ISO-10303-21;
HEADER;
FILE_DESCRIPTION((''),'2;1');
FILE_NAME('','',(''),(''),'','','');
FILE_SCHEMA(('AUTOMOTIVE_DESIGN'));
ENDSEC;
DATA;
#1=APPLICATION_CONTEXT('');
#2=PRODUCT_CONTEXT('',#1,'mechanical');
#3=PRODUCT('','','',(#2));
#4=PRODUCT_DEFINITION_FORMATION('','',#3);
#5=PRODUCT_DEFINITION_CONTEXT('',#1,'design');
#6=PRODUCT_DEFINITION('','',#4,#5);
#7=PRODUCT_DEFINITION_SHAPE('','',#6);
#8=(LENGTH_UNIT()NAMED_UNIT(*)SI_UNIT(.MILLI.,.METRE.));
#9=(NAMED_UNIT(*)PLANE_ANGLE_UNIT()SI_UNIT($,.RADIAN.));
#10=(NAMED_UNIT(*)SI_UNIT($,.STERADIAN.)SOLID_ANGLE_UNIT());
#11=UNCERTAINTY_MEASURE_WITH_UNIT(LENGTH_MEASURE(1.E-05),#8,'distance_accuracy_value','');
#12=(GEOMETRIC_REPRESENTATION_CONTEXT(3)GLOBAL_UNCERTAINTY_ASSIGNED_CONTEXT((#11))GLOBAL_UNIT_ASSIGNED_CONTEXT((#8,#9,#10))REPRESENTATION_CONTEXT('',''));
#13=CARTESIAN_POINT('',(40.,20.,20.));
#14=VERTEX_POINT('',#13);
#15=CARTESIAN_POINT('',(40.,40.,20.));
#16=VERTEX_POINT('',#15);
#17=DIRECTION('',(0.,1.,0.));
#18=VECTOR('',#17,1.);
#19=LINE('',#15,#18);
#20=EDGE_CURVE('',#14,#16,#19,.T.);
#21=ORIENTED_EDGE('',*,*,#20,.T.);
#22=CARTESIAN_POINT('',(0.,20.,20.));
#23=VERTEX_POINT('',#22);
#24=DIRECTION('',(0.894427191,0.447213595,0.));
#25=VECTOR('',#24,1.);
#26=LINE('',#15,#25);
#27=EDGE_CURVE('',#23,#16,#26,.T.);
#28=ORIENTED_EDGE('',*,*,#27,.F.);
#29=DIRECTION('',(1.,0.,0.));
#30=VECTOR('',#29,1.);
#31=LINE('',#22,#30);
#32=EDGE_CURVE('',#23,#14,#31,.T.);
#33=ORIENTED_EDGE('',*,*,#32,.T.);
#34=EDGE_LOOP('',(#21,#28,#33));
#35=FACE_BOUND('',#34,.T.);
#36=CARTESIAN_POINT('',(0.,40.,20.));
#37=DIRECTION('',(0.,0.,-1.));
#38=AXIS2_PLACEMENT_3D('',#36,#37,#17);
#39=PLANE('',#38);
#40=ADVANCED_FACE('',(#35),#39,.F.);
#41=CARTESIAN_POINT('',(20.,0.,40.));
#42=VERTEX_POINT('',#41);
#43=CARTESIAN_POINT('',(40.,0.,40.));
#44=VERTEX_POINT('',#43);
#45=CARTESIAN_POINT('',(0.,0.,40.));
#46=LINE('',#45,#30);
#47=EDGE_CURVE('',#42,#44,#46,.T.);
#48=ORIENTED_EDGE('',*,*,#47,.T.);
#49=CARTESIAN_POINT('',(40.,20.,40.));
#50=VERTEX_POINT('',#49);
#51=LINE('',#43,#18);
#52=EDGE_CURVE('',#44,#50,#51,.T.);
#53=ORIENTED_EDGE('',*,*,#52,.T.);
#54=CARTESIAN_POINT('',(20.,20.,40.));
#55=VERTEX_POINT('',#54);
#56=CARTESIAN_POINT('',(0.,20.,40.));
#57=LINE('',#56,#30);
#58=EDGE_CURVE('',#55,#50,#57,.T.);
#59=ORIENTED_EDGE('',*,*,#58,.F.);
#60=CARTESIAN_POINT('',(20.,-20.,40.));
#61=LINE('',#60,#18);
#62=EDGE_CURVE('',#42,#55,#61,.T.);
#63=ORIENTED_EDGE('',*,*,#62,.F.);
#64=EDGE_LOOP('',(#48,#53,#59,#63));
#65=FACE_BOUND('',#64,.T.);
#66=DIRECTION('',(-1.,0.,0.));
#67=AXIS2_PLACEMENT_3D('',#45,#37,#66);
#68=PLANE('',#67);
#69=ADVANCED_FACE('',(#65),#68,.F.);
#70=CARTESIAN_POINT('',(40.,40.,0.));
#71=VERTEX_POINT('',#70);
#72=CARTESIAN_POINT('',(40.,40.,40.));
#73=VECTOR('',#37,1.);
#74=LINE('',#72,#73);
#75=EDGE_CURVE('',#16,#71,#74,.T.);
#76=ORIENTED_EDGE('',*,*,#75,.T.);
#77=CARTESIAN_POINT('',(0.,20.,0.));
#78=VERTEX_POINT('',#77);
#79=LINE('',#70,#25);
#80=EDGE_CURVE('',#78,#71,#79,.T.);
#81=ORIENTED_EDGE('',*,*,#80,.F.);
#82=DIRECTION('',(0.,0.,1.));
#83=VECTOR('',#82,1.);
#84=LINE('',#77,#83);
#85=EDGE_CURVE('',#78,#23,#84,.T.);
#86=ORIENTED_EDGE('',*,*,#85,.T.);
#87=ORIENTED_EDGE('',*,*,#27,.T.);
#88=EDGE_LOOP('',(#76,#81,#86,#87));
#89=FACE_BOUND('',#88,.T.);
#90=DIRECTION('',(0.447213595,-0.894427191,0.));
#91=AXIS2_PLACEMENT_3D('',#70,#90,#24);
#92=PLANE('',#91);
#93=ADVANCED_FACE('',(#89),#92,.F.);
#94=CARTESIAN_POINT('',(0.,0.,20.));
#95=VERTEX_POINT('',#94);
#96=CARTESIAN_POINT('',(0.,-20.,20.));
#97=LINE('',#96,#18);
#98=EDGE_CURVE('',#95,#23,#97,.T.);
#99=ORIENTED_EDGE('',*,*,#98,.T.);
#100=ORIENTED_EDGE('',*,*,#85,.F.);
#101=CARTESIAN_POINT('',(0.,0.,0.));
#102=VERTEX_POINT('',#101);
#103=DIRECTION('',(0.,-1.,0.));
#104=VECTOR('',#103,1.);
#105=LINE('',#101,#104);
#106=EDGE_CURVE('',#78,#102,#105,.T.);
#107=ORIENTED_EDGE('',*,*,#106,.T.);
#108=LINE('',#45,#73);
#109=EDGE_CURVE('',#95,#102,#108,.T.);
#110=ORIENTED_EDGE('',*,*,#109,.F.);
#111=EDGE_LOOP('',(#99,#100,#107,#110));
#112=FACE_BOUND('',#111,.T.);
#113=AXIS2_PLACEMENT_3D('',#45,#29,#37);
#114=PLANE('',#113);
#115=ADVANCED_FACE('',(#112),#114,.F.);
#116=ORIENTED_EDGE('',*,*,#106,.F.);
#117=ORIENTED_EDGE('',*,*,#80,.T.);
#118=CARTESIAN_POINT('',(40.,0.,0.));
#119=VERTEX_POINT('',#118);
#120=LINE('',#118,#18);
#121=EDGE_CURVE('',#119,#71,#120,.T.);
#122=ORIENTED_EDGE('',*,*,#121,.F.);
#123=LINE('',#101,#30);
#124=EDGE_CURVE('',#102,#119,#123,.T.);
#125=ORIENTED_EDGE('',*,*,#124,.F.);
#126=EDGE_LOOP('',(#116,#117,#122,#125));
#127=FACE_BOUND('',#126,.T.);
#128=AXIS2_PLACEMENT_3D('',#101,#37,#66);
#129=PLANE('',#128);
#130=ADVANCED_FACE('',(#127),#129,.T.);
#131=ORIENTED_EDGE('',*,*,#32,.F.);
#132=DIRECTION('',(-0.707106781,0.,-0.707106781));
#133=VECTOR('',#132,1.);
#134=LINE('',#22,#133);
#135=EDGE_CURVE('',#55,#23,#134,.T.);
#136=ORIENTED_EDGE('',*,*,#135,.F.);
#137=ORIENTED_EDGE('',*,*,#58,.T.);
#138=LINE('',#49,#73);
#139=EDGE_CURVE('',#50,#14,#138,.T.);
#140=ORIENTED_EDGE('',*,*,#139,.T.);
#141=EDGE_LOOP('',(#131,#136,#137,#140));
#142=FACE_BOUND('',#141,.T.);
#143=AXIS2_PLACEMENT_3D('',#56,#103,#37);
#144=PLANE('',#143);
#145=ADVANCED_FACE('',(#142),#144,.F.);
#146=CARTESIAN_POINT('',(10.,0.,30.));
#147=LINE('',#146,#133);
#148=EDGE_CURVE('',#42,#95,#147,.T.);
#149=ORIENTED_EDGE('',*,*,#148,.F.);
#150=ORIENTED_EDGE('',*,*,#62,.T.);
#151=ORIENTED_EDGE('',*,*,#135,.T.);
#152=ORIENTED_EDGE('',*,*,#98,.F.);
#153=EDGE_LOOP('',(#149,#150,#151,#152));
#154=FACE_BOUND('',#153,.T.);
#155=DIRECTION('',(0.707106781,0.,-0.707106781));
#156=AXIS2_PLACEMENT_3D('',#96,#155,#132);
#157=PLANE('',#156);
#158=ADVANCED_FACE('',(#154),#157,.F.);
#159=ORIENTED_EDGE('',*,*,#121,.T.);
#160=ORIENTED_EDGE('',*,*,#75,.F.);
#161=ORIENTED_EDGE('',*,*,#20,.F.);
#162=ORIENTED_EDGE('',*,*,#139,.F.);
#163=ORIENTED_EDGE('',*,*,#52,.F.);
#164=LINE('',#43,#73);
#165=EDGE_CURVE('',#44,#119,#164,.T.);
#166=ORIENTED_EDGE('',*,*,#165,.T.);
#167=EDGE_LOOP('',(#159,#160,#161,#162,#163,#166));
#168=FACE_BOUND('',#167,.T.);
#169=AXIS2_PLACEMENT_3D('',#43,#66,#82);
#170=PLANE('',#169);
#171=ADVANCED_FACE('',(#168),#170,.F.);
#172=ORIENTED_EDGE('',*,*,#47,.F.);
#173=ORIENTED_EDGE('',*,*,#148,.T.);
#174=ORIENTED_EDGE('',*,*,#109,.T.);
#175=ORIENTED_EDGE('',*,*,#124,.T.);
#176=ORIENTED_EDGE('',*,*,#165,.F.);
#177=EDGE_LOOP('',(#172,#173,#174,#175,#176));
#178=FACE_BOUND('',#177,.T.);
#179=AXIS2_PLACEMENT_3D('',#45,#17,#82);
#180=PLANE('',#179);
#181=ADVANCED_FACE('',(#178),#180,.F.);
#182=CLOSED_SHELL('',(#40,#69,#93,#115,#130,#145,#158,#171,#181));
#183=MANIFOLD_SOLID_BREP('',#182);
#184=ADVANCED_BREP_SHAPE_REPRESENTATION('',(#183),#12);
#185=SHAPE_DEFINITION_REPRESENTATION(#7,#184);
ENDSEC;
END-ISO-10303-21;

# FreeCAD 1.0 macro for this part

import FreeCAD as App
import Part
import Sketcher

V = App.Vector


def add_polygon(sketch, points):
    """Adds a closed chain of lines whose ends are joined by coincident constraints."""
    first, n = sketch.GeometryCount, len(points)
    for a, b in zip(points, points[1:] + points[:1]):
        sketch.addGeometry(Part.LineSegment(App.Vector(*a, 0), App.Vector(*b, 0)), False)
    for i in range(n):
        sketch.addConstraint(Sketcher.Constraint("Coincident", first + i, 2, first + (i + 1) % n, 1))

doc = App.newDocument("Part")
params = doc.addObject("Spreadsheet::Sheet", "Params")
for row, (alias, value) in enumerate([
    ("sketch1_width", "40 mm"),
    ("pad1_length", "40 mm"),
    ("sketch2_width", "40 mm"),
    ("sketch2_height", "20 mm"),
    ("pocket1_length", "40 mm"),
    ("sketch3_width", "20 mm"),
    ("pocket2_length", "40 mm"),
    ("sketch4_width", "20 mm"),
    ("pocket3_length", "40 mm"),
], start=1):
    params.set(f"A{row}", alias)
    params.set(f"B{row}", "=" + value)
    params.setAlias(f"B{row}", alias)

body = doc.addObject("PartDesign::Body", "Body")

# Sketch on XY plane
sketch1 = doc.addObject("Sketcher::SketchObject", "Sketch")
body.addObject(sketch1)
sketch1.AttachmentSupport = (doc.XY_Plane, [""])
sketch1.MapMode = "FlatFace"
add_polygon(sketch1, [(0, 40), (0, 0), (40, 0), (40, 40)])  # lines 0-3
sketch1.addConstraint(Sketcher.Constraint("Vertical", 0))
sketch1.addConstraint(Sketcher.Constraint("Horizontal", 1))
sketch1.addConstraint(Sketcher.Constraint("Vertical", 2))
sketch1.addConstraint(Sketcher.Constraint("Horizontal", 3))
sketch1.addConstraint(Sketcher.Constraint("Coincident", 0, 2, -1, 1))
sketch1.addConstraint(Sketcher.Constraint("Equal", 3, 0))
sketch1.addConstraint(Sketcher.Constraint("DistanceX", 1, 1, 1, 2, 40.0))
sketch1.setExpression("Constraints[10]", "Params.sketch1_width")
pad1 = doc.addObject("PartDesign::Pad", "Pad")
body.addObject(pad1)
pad1.Profile = sketch1
pad1.setExpression("Length", "Params.pad1_length")

# Sketch on XY plane
sketch2 = doc.addObject("Sketcher::SketchObject", "Sketch001")
body.addObject(sketch2)
sketch2.AttachmentSupport = (doc.XY_Plane, [""])
sketch2.MapMode = "FlatFace"
sketch2.AttachmentOffset = App.Placement(V(0, 0, 40), App.Rotation())
add_polygon(sketch2, [(0, 20), (40, 40), (0, 40)])  # lines 0-2
sketch2.addConstraint(Sketcher.Constraint("Horizontal", 1))
sketch2.addConstraint(Sketcher.Constraint("Vertical", 2))
sketch2.addConstraint(Sketcher.Constraint("PointOnObject", 1, 2, -2))
sketch2.addConstraint(Sketcher.Constraint("DistanceX", 1, 2, 1, 1, 40.0))
sketch2.addConstraint(Sketcher.Constraint("DistanceY", 2, 2, 2, 1, 20.0))
sketch2.addConstraint(Sketcher.Constraint("DistanceY", -1, 1, 0, 2, 40.0))
sketch2.setExpression("Constraints[6]", "Params.sketch2_width")
sketch2.setExpression("Constraints[7]", "Params.sketch2_height")
pocket1 = doc.addObject("PartDesign::Pocket", "Pocket")
body.addObject(pocket1)
pocket1.Profile = sketch2
pocket1.setExpression("Length", "Params.pocket1_length")

# Sketch on YZ plane
sketch3 = doc.addObject("Sketcher::SketchObject", "Sketch002")
body.addObject(sketch3)
sketch3.AttachmentSupport = (doc.YZ_Plane, [""])
sketch3.MapMode = "FlatFace"
sketch3.AttachmentOffset = App.Placement(V(0, 0, 40), App.Rotation())
add_polygon(sketch3, [(40, 40), (20, 40), (20, 20), (40, 20)])  # lines 0-3
sketch3.addConstraint(Sketcher.Constraint("Horizontal", 0))
sketch3.addConstraint(Sketcher.Constraint("Vertical", 1))
sketch3.addConstraint(Sketcher.Constraint("Horizontal", 2))
sketch3.addConstraint(Sketcher.Constraint("Vertical", 3))
sketch3.addConstraint(Sketcher.Constraint("Equal", 2, 1))
sketch3.addConstraint(Sketcher.Constraint("DistanceX", 0, 2, 0, 1, 20.0))
sketch3.addConstraint(Sketcher.Constraint("DistanceX", -1, 1, 0, 2, 20.0))
sketch3.addConstraint(Sketcher.Constraint("DistanceY", -1, 1, 0, 2, 40.0))
sketch3.setExpression("Constraints[9]", "Params.sketch3_width")
pocket2 = doc.addObject("PartDesign::Pocket", "Pocket001")
body.addObject(pocket2)
pocket2.Profile = sketch3
pocket2.setExpression("Length", "Params.pocket2_length")

# Sketch on XZ plane
sketch4 = doc.addObject("Sketcher::SketchObject", "Sketch003")
body.addObject(sketch4)
sketch4.AttachmentSupport = (doc.XZ_Plane, [""])
sketch4.MapMode = "FlatFace"
sketch4.AttachmentOffset = App.Placement(V(0, 0, -20), App.Rotation())
add_polygon(sketch4, [(20, 40), (0, 20), (0, 40)])  # lines 0-2
sketch4.addConstraint(Sketcher.Constraint("Vertical", 1))
sketch4.addConstraint(Sketcher.Constraint("Horizontal", 2))
sketch4.addConstraint(Sketcher.Constraint("PointOnObject", 0, 2, -2))
sketch4.addConstraint(Sketcher.Constraint("Equal", 2, 1))
sketch4.addConstraint(Sketcher.Constraint("DistanceX", 2, 1, 2, 2, 20.0))
sketch4.addConstraint(Sketcher.Constraint("DistanceY", -1, 1, 0, 2, 20.0))
sketch4.setExpression("Constraints[7]", "Params.sketch4_width")
pocket3 = doc.addObject("PartDesign::Pocket", "Pocket002")
body.addObject(pocket3)
pocket3.Profile = sketch4
pocket3.setExpression("Length", "Params.pocket3_length")
pocket3.Reversed = True

doc.recompute()
